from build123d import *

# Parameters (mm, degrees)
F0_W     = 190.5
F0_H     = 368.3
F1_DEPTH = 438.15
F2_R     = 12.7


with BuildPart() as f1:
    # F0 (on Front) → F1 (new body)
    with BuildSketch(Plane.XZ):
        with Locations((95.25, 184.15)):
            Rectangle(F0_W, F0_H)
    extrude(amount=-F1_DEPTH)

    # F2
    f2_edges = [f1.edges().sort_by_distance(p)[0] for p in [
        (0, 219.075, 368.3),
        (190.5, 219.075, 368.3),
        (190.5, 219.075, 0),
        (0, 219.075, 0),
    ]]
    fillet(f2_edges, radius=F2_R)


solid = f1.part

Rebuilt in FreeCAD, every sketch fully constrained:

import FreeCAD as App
import Part
import Sketcher

V = App.Vector
Q = App.Units.Quantity


def edges_at(feature, points):
    """Names of the edges that pass closest to the given points."""
    edges = feature.Shape.Edges
    near = lambda p: min(range(len(edges)), key=lambda i: edges[i].distToShape(Part.Vertex(*p))[0])
    return sorted({f"Edge{near(p) + 1}" for p in points})


def add_polygon(sketch, points):
    """Adds a closed chain of lines whose ends are joined by coincident constraints."""
    first, n = sketch.GeometryCount, len(points)
    for a, b in zip(points, points[1:] + points[:1]):
        sketch.addGeometry(Part.LineSegment(App.Vector(*a, 0), App.Vector(*b, 0)), False)
    for i in range(n):
        sketch.addConstraint(Sketcher.Constraint("Coincident", first + i, 2, first + (i + 1) % n, 1))

doc = App.newDocument("Part")
body = doc.addObject("PartDesign::Body", "Body")

# Sketch on XZ plane
sketch1 = body.newObject("Sketcher::SketchObject", "Sketch")
sketch1.AttachmentSupport = (doc.getObject("XZ_Plane"), [""])
sketch1.MapMode = "FlatFace"
add_polygon(sketch1, [(0, 368), (0, 0), (190, 0), (190, 368)])  # lines 0-3
sketch1.addConstraint(Sketcher.Constraint("Vertical", 0))
sketch1.addConstraint(Sketcher.Constraint("Horizontal", 1))
sketch1.addConstraint(Sketcher.Constraint("Vertical", 2))
sketch1.addConstraint(Sketcher.Constraint("Horizontal", 3))
sketch1.addConstraint(Sketcher.Constraint("Coincident", 0, 2, -1, 1))
sketch1.addConstraint(Sketcher.Constraint("DistanceX", 1, 1, 1, 2, Q("7.5 in")))
sketch1.addConstraint(Sketcher.Constraint("DistanceY", 0, 2, 0, 1, Q("14.5 in")))
pad1 = body.newObject("PartDesign::Pad", "Pad")
pad1.Profile = sketch1
pad1.Length = Q("17.25 in")
pad1.Reversed = True
doc.recompute()

fillet = body.newObject("PartDesign::Fillet", "Fillet")
fillet.Base = (pad1, edges_at(pad1, [
    (0, 219.075, 368.3),
    (190.5, 219.075, 368.3),
    (190.5, 219.075, 0),
    (0, 219.075, 0),
]))
fillet.Radius = Q("0.5 in")

doc.recompute()
